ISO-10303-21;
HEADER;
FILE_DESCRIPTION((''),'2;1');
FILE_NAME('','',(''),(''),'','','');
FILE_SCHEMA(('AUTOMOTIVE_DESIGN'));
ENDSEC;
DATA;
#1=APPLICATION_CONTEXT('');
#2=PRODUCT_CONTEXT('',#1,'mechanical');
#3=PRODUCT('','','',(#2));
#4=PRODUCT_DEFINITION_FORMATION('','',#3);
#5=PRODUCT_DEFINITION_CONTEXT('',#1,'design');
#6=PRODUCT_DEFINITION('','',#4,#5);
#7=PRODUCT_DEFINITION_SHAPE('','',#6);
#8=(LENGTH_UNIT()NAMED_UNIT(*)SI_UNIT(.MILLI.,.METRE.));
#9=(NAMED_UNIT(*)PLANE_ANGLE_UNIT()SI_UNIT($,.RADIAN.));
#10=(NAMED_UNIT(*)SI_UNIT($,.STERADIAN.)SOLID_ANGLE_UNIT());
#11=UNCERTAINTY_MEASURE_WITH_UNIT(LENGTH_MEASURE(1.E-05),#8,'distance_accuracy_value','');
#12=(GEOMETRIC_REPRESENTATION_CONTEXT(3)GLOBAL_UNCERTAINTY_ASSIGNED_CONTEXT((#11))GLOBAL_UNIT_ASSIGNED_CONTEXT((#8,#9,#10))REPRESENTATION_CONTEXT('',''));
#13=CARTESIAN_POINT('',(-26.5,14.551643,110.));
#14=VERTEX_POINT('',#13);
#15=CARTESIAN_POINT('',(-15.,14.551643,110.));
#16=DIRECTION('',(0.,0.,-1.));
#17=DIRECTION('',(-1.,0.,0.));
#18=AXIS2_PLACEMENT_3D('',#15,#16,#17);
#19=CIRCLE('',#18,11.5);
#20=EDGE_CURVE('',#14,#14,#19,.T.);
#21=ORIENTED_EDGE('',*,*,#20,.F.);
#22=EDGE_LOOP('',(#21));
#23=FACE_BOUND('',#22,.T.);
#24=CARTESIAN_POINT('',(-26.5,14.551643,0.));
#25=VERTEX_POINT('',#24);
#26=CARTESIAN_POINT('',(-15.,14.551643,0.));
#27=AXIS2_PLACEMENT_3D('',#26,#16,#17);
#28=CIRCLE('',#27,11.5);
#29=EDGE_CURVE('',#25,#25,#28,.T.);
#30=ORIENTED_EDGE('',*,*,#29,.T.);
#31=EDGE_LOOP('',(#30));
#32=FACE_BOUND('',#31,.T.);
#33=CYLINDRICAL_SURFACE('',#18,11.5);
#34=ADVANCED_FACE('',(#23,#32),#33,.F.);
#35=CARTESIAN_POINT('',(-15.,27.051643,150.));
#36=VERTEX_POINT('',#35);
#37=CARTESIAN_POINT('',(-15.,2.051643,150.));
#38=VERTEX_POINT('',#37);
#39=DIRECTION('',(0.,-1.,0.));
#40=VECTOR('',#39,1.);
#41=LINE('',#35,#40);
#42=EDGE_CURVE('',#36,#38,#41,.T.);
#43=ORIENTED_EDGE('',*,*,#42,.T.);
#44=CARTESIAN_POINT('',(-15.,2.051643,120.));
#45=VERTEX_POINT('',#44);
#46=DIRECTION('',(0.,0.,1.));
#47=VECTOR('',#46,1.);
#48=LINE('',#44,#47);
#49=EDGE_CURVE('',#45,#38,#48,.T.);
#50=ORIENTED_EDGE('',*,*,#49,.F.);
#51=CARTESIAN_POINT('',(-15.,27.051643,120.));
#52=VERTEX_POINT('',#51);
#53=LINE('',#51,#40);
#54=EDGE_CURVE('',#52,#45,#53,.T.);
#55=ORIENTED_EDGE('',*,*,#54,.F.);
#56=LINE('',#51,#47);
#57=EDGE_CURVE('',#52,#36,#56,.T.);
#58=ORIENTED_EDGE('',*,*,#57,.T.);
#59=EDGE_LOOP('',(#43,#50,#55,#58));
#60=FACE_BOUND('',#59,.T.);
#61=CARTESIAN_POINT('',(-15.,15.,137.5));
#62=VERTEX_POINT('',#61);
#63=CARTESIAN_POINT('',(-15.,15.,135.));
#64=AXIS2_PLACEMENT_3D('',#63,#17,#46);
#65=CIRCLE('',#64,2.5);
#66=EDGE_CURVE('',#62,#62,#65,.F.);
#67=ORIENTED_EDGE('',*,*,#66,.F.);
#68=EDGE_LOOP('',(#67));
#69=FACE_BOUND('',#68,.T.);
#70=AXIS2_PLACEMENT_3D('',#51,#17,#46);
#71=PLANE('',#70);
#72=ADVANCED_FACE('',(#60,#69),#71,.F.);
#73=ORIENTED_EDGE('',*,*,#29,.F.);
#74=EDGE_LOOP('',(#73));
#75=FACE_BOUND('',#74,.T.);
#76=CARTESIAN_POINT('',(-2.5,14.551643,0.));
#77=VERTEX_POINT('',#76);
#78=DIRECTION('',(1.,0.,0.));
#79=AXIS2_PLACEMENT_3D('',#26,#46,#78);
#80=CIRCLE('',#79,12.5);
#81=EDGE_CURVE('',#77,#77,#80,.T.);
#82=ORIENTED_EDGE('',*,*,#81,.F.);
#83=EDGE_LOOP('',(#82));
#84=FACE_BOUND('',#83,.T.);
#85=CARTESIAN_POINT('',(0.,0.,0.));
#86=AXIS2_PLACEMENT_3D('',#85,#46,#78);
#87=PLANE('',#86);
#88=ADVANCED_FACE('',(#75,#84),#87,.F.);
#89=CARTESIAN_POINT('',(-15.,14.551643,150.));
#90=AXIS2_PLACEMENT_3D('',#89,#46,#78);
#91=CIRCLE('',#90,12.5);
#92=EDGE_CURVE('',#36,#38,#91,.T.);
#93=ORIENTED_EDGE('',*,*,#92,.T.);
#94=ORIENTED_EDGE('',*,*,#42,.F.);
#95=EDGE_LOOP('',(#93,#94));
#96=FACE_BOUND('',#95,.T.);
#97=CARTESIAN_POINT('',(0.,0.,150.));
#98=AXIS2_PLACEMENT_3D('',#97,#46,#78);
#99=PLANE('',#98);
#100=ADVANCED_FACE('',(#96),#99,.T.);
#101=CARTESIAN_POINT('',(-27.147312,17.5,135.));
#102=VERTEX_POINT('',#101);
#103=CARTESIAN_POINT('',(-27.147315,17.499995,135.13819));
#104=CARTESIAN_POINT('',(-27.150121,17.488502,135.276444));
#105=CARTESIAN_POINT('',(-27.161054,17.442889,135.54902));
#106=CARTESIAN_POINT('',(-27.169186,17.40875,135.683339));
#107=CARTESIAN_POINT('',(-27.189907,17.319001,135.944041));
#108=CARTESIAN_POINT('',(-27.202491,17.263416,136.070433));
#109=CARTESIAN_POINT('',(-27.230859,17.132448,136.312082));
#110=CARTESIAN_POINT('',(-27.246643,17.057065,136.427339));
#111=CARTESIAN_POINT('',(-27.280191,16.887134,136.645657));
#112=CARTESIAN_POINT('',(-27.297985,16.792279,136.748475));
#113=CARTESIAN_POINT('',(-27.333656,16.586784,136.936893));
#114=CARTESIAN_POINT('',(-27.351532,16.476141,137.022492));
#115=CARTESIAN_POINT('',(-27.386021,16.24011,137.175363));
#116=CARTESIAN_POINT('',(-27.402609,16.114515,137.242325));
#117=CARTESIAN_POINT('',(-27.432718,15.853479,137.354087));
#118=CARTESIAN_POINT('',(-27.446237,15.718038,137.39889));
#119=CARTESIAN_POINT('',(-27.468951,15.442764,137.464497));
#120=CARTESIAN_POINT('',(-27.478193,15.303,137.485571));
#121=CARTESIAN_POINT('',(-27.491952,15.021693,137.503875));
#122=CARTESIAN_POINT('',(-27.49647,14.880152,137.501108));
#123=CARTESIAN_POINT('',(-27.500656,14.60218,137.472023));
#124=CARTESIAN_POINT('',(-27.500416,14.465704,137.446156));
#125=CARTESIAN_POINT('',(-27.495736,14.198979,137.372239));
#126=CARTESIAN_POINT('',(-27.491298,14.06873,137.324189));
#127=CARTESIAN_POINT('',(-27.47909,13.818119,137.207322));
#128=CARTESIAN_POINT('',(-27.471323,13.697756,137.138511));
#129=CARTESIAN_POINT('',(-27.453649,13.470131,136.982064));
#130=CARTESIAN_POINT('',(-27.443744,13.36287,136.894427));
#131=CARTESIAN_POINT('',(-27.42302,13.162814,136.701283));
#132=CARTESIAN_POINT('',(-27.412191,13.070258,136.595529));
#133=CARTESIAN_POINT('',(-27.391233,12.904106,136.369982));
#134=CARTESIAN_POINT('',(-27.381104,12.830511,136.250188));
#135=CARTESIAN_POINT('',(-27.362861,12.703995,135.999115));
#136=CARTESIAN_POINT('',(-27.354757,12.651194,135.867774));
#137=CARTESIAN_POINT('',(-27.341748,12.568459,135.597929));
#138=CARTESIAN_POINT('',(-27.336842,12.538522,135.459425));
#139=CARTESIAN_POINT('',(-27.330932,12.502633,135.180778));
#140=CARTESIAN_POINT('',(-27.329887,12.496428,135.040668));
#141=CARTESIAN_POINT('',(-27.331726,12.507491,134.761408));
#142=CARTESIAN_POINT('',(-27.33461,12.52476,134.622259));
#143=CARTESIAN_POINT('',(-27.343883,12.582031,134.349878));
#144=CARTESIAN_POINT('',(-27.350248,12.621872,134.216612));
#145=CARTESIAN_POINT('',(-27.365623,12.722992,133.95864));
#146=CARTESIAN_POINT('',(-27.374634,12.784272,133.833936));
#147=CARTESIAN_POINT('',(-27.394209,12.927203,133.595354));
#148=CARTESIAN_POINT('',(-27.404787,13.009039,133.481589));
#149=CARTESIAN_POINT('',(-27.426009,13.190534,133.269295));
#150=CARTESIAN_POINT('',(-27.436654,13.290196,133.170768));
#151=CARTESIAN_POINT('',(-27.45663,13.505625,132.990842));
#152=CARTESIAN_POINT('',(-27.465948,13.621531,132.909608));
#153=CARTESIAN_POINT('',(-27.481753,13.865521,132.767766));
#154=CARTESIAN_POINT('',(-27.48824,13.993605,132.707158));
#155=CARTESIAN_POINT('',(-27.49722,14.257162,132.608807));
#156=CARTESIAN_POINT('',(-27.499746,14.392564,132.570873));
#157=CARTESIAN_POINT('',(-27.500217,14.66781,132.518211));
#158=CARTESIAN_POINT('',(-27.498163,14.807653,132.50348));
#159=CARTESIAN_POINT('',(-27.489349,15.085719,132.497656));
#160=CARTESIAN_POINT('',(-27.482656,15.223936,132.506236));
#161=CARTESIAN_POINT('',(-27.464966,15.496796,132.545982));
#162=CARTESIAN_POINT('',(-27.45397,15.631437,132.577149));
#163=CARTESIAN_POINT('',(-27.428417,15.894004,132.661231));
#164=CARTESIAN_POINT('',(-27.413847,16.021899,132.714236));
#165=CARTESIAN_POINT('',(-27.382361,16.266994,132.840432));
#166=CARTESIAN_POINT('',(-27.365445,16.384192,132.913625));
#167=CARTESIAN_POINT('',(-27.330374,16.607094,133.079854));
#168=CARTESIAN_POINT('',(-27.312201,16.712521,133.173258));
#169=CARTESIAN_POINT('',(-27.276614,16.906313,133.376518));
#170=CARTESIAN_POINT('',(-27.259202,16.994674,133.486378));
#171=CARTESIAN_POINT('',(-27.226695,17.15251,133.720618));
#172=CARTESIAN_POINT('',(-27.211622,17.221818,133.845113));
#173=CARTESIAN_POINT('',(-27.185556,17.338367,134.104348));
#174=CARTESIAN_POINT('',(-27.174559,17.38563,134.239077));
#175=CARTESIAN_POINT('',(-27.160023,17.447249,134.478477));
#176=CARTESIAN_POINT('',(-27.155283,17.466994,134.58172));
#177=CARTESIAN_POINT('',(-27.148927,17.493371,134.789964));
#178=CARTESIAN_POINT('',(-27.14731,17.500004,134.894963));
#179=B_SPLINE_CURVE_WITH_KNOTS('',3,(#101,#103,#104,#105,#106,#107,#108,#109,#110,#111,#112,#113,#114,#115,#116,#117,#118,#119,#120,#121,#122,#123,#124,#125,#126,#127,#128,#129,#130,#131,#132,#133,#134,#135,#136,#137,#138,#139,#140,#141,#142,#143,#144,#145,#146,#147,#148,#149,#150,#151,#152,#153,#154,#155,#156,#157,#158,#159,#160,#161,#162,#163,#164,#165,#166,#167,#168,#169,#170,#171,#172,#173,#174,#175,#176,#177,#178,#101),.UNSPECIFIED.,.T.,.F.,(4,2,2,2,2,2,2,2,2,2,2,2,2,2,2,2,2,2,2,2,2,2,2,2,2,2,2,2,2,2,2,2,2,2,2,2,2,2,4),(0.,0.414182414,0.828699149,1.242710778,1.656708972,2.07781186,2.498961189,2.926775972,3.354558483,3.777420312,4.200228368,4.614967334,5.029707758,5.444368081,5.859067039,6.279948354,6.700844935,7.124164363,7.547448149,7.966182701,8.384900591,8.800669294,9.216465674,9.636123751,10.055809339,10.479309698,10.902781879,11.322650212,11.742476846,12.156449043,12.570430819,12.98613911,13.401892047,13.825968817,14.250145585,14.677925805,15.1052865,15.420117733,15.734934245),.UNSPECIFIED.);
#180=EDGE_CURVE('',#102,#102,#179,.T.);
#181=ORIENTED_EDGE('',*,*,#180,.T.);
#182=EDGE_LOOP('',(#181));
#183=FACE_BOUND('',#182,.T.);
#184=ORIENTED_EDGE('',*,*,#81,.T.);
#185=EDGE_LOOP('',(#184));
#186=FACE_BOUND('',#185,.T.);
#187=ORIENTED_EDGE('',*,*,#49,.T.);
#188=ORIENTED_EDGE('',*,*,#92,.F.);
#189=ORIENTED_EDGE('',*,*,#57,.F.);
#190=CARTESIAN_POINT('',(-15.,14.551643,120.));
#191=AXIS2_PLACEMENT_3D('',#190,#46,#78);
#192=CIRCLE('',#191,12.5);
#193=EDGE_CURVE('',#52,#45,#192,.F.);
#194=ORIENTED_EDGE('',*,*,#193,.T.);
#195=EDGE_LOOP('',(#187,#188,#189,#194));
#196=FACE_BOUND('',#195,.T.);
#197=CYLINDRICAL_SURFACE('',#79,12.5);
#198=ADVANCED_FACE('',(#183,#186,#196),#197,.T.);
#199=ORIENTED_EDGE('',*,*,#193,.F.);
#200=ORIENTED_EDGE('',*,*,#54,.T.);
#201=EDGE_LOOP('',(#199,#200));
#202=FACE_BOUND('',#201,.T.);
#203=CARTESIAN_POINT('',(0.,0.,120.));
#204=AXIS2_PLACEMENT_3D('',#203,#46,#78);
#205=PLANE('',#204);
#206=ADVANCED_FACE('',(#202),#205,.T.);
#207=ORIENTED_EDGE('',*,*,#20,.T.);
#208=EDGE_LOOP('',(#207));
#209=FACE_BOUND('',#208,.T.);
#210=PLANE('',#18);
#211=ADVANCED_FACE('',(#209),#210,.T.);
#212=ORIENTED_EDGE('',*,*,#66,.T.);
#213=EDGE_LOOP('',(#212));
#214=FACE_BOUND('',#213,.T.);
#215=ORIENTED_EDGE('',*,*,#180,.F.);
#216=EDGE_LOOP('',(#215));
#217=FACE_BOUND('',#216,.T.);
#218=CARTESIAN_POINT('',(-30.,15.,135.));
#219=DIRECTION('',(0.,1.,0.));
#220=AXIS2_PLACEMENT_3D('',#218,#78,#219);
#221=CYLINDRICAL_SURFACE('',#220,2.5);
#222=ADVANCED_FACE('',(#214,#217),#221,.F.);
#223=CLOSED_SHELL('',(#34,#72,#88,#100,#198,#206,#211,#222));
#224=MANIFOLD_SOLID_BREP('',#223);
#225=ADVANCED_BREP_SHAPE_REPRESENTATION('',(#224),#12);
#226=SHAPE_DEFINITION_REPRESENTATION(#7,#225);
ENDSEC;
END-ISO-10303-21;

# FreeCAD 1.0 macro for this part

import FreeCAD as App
import Part
import Sketcher
Q = App.Units.Quantity


def add_polygon(sketch, points):
    """Adds a closed chain of lines whose ends are joined by coincident constraints."""
    first, n = sketch.GeometryCount, len(points)
    for a, b in zip(points, points[1:] + points[:1]):
        sketch.addGeometry(Part.LineSegment(App.Vector(*a, 0), App.Vector(*b, 0)), False)
    for i in range(n):
        sketch.addConstraint(Sketcher.Constraint("Coincident", first + i, 2, first + (i + 1) % n, 1))

doc = App.newDocument("Part")
body = doc.addObject("PartDesign::Body", "Body")

# Sketch on XY plane
sketch1 = doc.addObject("Sketcher::SketchObject", "Sketch")
body.addObject(sketch1)
sketch1.AttachmentSupport = (doc.XY_Plane, [""])
sketch1.MapMode = "FlatFace"
add_polygon(sketch1, [(-30, 30), (-30, 0), (0, 0), (0, 30)])  # lines 0-3
sketch1.addConstraint([
    Sketcher.Constraint("Vertical", 0),
    Sketcher.Constraint("Horizontal", 1),
    Sketcher.Constraint("Vertical", 2),
    Sketcher.Constraint("Horizontal", 3),
    Sketcher.Constraint("Coincident", 1, 2, -1, 1),
    Sketcher.Constraint("Equal", 3, 0),
    Sketcher.Constraint("DistanceX", 1, 1, 1, 2, Q("30 mm")),
])
pad1 = doc.addObject("PartDesign::Pad", "Pad")
body.addObject(pad1)
pad1.Profile = sketch1
pad1.Length = 150

# Sketch on YZ plane
sketch2 = doc.addObject("Sketcher::SketchObject", "Sketch001")
body.addObject(sketch2)
sketch2.AttachmentSupport = (doc.YZ_Plane, [""])
sketch2.MapMode = "FlatFace"
sketch2.addGeometry(Part.Circle(App.Vector(15, 135, 0), App.Vector(0, 0, 1), 2.5), False)
sketch2.addConstraint([
    Sketcher.Constraint("Diameter", 0, Q("5 mm")),
    Sketcher.Constraint("DistanceX", -1, 1, 0, 3, Q("15 mm")),
    Sketcher.Constraint("DistanceY", -1, 1, 0, 3, Q("135 mm")),
])
pocket1 = doc.addObject("PartDesign::Pocket", "Pocket")
body.addObject(pocket1)
pocket1.Profile = sketch2
pocket1.Length = 30

# Sketch on XY plane
sketch3 = doc.addObject("Sketcher::SketchObject", "Sketch002")
body.addObject(sketch3)
sketch3.AttachmentSupport = (doc.XY_Plane, [""])
sketch3.MapMode = "FlatFace"
sketch3.AttachmentOffset = App.Placement(App.Vector(0, 0, 150), App.Rotation())
add_polygon(sketch3, [(-46.588, 46.588), (-46.588, -16.588), (16.588, -16.588), (16.588, 46.588)])  # lines 0-3
sketch3.addGeometry(Part.Circle(App.Vector(-15, 14.551643, 0), App.Vector(0, 0, 1), 12.5), False)  # 4
sketch3.addConstraint([
    Sketcher.Constraint("Vertical", 0),
    Sketcher.Constraint("Horizontal", 1),
    Sketcher.Constraint("Vertical", 2),
    Sketcher.Constraint("Horizontal", 3),
    Sketcher.Constraint("Equal", 3, 0),
    Sketcher.Constraint("Diameter", 4, Q("25 mm")),
    Sketcher.Constraint("DistanceX", 4, 3, -1, 1, Q("15 mm")),
    Sketcher.Constraint("DistanceX", 1, 1, 1, 2, Q("63.176 mm")),
    Sketcher.Constraint("DistanceX", 0, 2, -1, 1, Q("46.588 mm")),
    Sketcher.Constraint("DistanceY", 0, 2, -1, 1, Q("16.588 mm")),
    Sketcher.Constraint("DistanceY", -1, 1, 4, 3, Q("14.551643 mm")),
])
pocket2 = doc.addObject("PartDesign::Pocket", "Pocket001")
body.addObject(pocket2)
pocket2.Profile = sketch3
pocket2.Length = 150

# Sketch on XY plane
sketch4 = doc.addObject("Sketcher::SketchObject", "Sketch003")
body.addObject(sketch4)
sketch4.AttachmentSupport = (doc.XY_Plane, [""])
sketch4.MapMode = "FlatFace"
sketch4.addGeometry(Part.Circle(App.Vector(-15, 14.551643, 0), App.Vector(0, 0, 1), 11.5), False)
sketch4.addConstraint([
    Sketcher.Constraint("Diameter", 0, Q("23 mm")),
    Sketcher.Constraint("DistanceX", 0, 3, -1, 1, Q("15 mm")),
    Sketcher.Constraint("DistanceY", -1, 1, 0, 3, Q("14.551643 mm")),
])
pocket3 = doc.addObject("PartDesign::Pocket", "Pocket002")
body.addObject(pocket3)
pocket3.Profile = sketch4
pocket3.Length = 110
pocket3.Reversed = True

# Sketch on XY plane
sketch5 = doc.addObject("Sketcher::SketchObject", "Sketch004")
body.addObject(sketch5)
sketch5.AttachmentSupport = (doc.XY_Plane, [""])
sketch5.MapMode = "FlatFace"
sketch5.AttachmentOffset = App.Placement(App.Vector(0, 0, 150), App.Rotation())
add_polygon(sketch5, [(-15, 27.051643), (-15, 2.051643), (-2.5, 2.051643), (-2.5, 27.051643)])  # lines 0-3
sketch5.addConstraint([
    Sketcher.Constraint("Vertical", 0),
    Sketcher.Constraint("Horizontal", 1),
    Sketcher.Constraint("Vertical", 2),
    Sketcher.Constraint("Horizontal", 3),
    Sketcher.Constraint("DistanceY", 0, 2, 0, 1, Q("25 mm")),
    Sketcher.Constraint("DistanceX", 1, 1, 1, 2, Q("12.5 mm")),
    Sketcher.Constraint("DistanceX", 0, 2, -1, 1, Q("15 mm")),
    Sketcher.Constraint("DistanceY", -1, 1, 0, 2, Q("2.051643 mm")),
])
pocket4 = doc.addObject("PartDesign::Pocket", "Pocket003")
body.addObject(pocket4)
pocket4.Profile = sketch5
pocket4.Length = 30

doc.recompute()
